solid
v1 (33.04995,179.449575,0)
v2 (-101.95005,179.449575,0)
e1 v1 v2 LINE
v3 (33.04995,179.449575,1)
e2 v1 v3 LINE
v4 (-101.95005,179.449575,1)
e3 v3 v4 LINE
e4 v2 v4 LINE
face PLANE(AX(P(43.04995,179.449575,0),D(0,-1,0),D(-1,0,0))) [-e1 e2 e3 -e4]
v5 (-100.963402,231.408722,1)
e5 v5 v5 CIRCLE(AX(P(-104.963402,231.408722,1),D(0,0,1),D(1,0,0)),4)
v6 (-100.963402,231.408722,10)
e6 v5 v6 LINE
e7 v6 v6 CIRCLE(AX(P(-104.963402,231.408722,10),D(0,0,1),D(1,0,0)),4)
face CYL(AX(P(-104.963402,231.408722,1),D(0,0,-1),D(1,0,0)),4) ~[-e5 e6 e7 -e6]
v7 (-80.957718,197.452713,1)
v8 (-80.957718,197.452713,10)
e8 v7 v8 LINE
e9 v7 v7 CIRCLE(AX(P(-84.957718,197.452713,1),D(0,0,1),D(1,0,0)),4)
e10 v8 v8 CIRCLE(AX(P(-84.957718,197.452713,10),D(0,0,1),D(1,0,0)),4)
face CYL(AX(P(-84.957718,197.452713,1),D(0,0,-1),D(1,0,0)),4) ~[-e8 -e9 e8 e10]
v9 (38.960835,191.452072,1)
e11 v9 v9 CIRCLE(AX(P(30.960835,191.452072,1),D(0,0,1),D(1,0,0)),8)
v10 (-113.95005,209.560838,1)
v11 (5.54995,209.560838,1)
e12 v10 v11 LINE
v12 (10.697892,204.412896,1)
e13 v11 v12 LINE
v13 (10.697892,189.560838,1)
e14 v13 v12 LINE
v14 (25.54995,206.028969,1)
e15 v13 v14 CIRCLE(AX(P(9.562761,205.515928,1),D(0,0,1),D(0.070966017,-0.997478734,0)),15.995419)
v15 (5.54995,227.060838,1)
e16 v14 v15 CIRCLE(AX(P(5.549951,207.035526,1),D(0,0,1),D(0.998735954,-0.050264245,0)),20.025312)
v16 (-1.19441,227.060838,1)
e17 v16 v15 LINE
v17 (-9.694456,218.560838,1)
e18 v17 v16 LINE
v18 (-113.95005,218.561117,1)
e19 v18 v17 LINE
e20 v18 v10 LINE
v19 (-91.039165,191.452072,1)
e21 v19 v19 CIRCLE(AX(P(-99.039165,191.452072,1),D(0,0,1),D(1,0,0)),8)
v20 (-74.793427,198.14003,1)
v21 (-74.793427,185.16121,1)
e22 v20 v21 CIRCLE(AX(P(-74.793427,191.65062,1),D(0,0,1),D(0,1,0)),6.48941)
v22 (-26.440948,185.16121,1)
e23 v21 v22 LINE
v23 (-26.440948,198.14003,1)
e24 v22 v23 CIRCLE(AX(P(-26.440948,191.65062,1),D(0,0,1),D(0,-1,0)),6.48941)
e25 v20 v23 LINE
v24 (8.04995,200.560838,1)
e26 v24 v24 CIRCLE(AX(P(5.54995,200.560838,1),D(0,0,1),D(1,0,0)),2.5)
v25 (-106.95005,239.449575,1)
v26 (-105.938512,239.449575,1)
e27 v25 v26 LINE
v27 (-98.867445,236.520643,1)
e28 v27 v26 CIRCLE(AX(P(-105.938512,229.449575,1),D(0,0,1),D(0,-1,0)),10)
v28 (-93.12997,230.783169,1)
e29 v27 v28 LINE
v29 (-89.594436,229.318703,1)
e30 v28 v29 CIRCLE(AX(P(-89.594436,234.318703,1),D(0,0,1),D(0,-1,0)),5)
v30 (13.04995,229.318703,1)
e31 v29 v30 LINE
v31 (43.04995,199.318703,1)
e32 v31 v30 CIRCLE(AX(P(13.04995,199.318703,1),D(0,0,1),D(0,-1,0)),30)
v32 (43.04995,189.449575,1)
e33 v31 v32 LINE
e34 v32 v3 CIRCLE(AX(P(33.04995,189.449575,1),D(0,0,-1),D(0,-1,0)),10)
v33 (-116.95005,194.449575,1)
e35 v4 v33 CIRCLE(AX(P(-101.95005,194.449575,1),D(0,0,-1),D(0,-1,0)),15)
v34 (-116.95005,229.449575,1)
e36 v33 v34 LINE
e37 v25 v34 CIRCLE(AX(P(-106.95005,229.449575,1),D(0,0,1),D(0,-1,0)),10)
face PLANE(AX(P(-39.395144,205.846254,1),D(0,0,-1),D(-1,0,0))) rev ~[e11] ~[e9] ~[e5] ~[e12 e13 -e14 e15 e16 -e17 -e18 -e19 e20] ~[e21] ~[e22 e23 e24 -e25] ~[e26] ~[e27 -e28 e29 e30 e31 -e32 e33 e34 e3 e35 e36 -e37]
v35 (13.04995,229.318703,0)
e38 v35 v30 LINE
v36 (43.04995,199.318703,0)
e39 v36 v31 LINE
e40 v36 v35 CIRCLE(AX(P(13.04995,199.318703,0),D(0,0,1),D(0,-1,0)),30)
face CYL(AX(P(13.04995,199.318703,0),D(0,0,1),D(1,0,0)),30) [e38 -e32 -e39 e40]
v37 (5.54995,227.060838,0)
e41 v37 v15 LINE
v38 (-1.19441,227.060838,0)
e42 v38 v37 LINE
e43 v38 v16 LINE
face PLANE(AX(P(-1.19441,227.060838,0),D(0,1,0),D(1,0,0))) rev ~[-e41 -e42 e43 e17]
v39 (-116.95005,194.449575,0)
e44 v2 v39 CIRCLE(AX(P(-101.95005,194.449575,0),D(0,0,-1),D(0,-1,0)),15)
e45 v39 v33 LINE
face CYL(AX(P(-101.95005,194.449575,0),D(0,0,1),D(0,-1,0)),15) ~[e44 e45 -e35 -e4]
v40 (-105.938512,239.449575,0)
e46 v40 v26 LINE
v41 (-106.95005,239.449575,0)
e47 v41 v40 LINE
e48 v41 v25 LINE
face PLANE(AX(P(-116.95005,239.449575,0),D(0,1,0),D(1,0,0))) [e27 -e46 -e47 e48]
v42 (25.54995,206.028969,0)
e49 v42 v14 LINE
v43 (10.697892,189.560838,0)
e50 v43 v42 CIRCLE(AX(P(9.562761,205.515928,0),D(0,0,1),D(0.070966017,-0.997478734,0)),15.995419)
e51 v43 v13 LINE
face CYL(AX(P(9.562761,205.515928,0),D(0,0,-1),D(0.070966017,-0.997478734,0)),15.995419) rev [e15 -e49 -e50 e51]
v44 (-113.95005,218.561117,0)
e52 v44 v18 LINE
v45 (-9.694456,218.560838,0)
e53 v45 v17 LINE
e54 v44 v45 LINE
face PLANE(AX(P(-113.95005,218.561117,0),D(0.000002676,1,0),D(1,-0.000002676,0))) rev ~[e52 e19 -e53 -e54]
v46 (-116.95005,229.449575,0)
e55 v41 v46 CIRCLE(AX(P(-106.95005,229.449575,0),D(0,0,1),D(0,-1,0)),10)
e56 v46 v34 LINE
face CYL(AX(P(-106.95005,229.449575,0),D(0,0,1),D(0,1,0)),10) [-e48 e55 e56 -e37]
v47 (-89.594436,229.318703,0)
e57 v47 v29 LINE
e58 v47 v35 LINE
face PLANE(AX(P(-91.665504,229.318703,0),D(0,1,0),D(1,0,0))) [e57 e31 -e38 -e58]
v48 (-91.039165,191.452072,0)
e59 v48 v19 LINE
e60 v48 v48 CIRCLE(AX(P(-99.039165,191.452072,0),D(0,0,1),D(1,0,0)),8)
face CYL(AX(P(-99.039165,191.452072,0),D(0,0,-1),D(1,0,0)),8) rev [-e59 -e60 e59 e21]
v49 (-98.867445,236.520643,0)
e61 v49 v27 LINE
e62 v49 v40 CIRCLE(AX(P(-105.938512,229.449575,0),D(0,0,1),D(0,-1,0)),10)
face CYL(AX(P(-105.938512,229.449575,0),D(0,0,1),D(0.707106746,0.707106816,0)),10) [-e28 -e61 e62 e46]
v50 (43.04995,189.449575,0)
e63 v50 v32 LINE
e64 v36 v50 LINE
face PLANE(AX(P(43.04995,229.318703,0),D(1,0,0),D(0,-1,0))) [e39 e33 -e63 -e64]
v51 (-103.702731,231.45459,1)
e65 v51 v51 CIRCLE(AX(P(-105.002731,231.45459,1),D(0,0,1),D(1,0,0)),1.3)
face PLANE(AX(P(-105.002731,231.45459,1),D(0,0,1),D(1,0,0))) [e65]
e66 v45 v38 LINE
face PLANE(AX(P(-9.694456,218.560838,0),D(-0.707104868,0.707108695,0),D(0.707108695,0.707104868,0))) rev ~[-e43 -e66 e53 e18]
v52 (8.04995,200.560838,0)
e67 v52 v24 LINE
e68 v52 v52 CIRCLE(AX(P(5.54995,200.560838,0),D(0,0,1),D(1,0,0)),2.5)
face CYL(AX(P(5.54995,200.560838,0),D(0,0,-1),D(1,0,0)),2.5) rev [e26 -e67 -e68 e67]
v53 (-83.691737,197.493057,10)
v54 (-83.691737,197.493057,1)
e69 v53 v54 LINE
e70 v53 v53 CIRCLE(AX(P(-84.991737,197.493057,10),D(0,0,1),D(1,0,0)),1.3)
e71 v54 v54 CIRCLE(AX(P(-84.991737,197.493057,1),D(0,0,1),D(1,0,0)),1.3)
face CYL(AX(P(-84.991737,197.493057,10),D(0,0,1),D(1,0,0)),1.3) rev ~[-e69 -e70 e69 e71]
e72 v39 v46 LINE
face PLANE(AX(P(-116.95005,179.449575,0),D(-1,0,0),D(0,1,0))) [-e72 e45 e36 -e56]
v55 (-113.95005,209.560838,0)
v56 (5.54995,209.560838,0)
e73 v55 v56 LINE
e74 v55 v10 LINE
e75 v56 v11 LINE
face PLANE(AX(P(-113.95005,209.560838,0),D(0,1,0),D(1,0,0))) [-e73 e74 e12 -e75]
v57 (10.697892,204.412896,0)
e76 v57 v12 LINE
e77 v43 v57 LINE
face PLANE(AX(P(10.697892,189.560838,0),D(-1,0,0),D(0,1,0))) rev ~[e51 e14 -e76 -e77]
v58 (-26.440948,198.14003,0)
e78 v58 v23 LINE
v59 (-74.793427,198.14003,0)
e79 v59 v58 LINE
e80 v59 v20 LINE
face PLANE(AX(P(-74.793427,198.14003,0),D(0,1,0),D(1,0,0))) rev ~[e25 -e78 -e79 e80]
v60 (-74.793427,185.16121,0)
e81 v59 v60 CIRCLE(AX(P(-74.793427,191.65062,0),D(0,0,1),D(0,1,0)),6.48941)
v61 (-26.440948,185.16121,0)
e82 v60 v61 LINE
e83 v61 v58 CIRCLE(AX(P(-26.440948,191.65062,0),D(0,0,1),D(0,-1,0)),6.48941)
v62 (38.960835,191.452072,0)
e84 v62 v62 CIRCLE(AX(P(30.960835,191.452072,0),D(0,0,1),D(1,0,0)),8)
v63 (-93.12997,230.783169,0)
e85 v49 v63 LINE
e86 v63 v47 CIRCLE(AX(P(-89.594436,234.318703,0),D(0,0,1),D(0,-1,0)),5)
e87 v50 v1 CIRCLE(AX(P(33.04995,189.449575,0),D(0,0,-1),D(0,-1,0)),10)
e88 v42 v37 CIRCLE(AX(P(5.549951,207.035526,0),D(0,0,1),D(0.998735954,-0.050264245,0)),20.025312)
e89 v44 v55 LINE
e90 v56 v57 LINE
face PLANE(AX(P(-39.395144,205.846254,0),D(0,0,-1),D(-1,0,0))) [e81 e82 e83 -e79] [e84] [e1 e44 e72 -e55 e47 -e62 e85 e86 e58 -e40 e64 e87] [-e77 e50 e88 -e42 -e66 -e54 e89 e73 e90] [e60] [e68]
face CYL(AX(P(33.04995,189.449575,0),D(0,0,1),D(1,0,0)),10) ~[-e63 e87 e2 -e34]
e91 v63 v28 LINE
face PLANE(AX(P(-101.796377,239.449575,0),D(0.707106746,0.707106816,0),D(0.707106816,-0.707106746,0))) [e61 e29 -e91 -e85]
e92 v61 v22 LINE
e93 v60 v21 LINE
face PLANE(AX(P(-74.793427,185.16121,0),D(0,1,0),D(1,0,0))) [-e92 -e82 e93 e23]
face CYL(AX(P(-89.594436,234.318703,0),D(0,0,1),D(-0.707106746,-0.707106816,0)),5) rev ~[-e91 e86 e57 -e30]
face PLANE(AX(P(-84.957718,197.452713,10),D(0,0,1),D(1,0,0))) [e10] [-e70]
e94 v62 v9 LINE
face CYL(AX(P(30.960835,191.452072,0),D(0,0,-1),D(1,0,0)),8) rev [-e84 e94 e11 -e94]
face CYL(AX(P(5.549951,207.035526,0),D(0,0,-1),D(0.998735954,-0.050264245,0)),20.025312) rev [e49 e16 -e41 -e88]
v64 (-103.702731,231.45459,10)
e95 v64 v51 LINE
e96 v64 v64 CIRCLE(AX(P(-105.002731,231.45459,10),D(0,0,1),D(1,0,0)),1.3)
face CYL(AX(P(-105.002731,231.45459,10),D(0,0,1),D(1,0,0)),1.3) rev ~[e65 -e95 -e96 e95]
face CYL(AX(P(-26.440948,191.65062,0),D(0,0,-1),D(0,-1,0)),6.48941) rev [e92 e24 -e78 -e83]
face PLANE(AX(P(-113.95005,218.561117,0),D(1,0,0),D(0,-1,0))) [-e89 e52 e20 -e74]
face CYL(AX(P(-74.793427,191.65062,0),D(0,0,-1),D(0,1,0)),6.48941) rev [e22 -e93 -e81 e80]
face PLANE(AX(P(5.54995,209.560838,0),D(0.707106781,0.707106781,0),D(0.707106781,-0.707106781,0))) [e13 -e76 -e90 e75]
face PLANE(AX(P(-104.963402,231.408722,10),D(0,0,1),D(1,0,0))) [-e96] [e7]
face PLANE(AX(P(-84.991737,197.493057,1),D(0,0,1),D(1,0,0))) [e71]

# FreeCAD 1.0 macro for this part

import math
import FreeCAD as App
import Part
import Sketcher
Q = App.Units.Quantity


def edges_at(feature, points):
    """Names of the edges that pass closest to the given points."""
    edges = feature.Shape.Edges
    near = lambda p: min(range(len(edges)), key=lambda i: edges[i].distToShape(Part.Vertex(*p))[0])
    return sorted({f"Edge{near(p) + 1}" for p in points})


def add_polygon(sketch, points):
    """Adds a closed chain of lines whose ends are joined by coincident constraints."""
    first, n = sketch.GeometryCount, len(points)
    for a, b in zip(points, points[1:] + points[:1]):
        sketch.addGeometry(Part.LineSegment(App.Vector(*a, 0), App.Vector(*b, 0)), False)
    for i in range(n):
        sketch.addConstraint(Sketcher.Constraint("Coincident", first + i, 2, first + (i + 1) % n, 1))

doc = App.newDocument("Part")
params = doc.addObject("Spreadsheet::Sheet", "Params")
for row, (alias, value) in enumerate([
    ("sketch1_diameter", "16 mm"),
    ("sketch1_diameter2", "5 mm"),
    ("sketch1_width", "160 mm"),
    ("sketch1_height", "60 mm"),
    ("sketch1_width2", "119.5 mm"),
    ("pad1_length", "1 mm"),
    ("sketch2_diameter", "8 mm"),
    ("pad2_length", "9 mm"),
    ("sketch3_diameter", "2.6 mm"),
    ("pocket1_length", "9 mm"),
    ("fillet_radius", "10 mm"),
    ("fillet2_radius", "15 mm"),
    ("fillet3_radius", "30 mm"),
    ("fillet4_radius", "10 mm"),
    ("fillet5_radius", "10 mm"),
    ("fillet6_radius", "5 mm"),
], start=1):
    params.set(f"A{row}", alias)
    params.set(f"B{row}", "=" + value)
    params.setAlias(f"B{row}", alias)

body = doc.addObject("PartDesign::Body", "Body")

# Sketch on XY plane
sketch1 = doc.addObject("Sketcher::SketchObject", "Sketch")
body.addObject(sketch1)
sketch1.AttachmentSupport = (doc.XY_Plane, [""])
sketch1.MapMode = "FlatFace"
add_polygon(sketch1, [(43.04995, 179.449575), (43.04995, 229.318703), (-91.665504, 229.318703), (-101.796377, 239.449575), (-116.95005, 239.449575), (-116.95005, 179.449575)])  # lines 0-5
sketch1.addGeometry(Part.Circle(App.Vector(30.960835, 191.452072, 0), App.Vector(0, 0, 1), 8), False)  # 6
sketch1.addGeometry(Part.Circle(App.Vector(5.54995, 200.560838, 0), App.Vector(0, 0, 1), 2.5), False)  # 7
sketch1.addGeometry(Part.LineSegment(App.Vector(-74.793427, 198.14003, 0), App.Vector(-26.440948, 198.14003, 0)), False)  # 8
sketch1.addGeometry(Part.ArcOfCircle(Part.Circle(App.Vector(-26.440948, 191.65062, 0), App.Vector(0, 0, 1), 6.48941), math.radians(-90), math.radians(90)), False)  # 9
sketch1.addGeometry(Part.LineSegment(App.Vector(-26.440948, 185.16121, 0), App.Vector(-74.793427, 185.16121, 0)), False)  # 10
sketch1.addGeometry(Part.ArcOfCircle(Part.Circle(App.Vector(-74.793427, 191.65062, 0), App.Vector(0, 0, 1), 6.48941), math.radians(90), math.radians(270)), False)  # 11
sketch1.addGeometry(Part.Circle(App.Vector(-99.039165, 191.452072, 0), App.Vector(0, 0, 1), 8), False)  # 12
sketch1.addGeometry(Part.ArcOfCircle(Part.Circle(App.Vector(9.562761, 205.515928, 0), App.Vector(0, 0, 1), 15.995419), math.radians(-85.930526), math.radians(1.838033)), False)  # 13
sketch1.addGeometry(Part.LineSegment(App.Vector(10.697892, 189.560838, 0), App.Vector(10.697892, 204.412896, 0)), False)  # 14
sketch1.addGeometry(Part.LineSegment(App.Vector(10.697892, 204.412896, 0), App.Vector(5.54995, 209.560838, 0)), False)  # 15
sketch1.addGeometry(Part.LineSegment(App.Vector(5.54995, 209.560838, 0), App.Vector(-113.95005, 209.560838, 0)), False)  # 16
sketch1.addGeometry(Part.LineSegment(App.Vector(-113.95005, 209.560838, 0), App.Vector(-113.95005, 218.561117, 0)), False)  # 17
sketch1.addGeometry(Part.LineSegment(App.Vector(-113.95005, 218.561117, 0), App.Vector(-9.694456, 218.560838, 0)), False)  # 18
sketch1.addGeometry(Part.LineSegment(App.Vector(-9.694456, 218.560838, 0), App.Vector(-1.19441, 227.060838, 0)), False)  # 19
sketch1.addGeometry(Part.LineSegment(App.Vector(-1.19441, 227.060838, 0), App.Vector(5.54995, 227.060838, 0)), False)  # 20
sketch1.addGeometry(Part.ArcOfCircle(Part.Circle(App.Vector(5.549951, 207.035526, 0), App.Vector(0, 0, 1), 20.025312), math.radians(-2.881143), math.radians(90.000003)), False)  # 21
sketch1.addConstraint([
    Sketcher.Constraint("Tangent", 8, 2, 9, 2),
    Sketcher.Constraint("Tangent", 9, 1, 10, 1),
    Sketcher.Constraint("Tangent", 10, 2, 11, 2),
    Sketcher.Constraint("Tangent", 11, 1, 8, 1),
    Sketcher.Constraint("Coincident", 13, 1, 14, 1),
    Sketcher.Constraint("Coincident", 14, 2, 15, 1),
    Sketcher.Constraint("Coincident", 15, 2, 16, 1),
    Sketcher.Constraint("Coincident", 16, 2, 17, 1),
    Sketcher.Constraint("Coincident", 17, 2, 18, 1),
    Sketcher.Constraint("Coincident", 18, 2, 19, 1),
    Sketcher.Constraint("Coincident", 19, 2, 20, 1),
    Sketcher.Constraint("Tangent", 20, 2, 21, 2),
    Sketcher.Constraint("Coincident", 21, 1, 13, 2),
    Sketcher.Constraint("Vertical", 0),
    Sketcher.Constraint("Horizontal", 1),
    Sketcher.Constraint("Horizontal", 3),
    Sketcher.Constraint("Vertical", 4),
    Sketcher.Constraint("Horizontal", 5),
    Sketcher.Constraint("Horizontal", 8),
    Sketcher.Constraint("Horizontal", 10),
    Sketcher.Constraint("Vertical", 14),
    Sketcher.Constraint("Horizontal", 16),
    Sketcher.Constraint("Vertical", 17),
    Sketcher.Constraint("Horizontal", 20),
    Sketcher.Constraint("Equal", 6, 12),
    Sketcher.Constraint("Parallel", 2, 15),
    Sketcher.Constraint("Horizontal", 6, 3, 12, 3),
    Sketcher.Constraint("Vertical", 7, 3, 21, 3),
    Sketcher.Constraint("Vertical", 21, 3, 15, 2),
    Sketcher.Constraint("Diameter", 6, 16.0),
    Sketcher.Constraint("Diameter", 7, 5.0),
    Sketcher.Constraint("DistanceX", 5, 1, 5, 2, 160.0),
    Sketcher.Constraint("DistanceY", 4, 2, 4, 1, 60.0),
    Sketcher.Constraint("Angle", 2, Q("135.000003 deg")),
    Sketcher.Constraint("DistanceX", 16, 2, 16, 1, 119.5),
    Sketcher.Constraint("DistanceX", 12, 3, 6, 3, 130.0),
    Sketcher.Constraint("DistanceY", 13, 1, 7, 3, 11.0),
    Sketcher.Constraint("DistanceY", 7, 3, 15, 2, 9.0),
    Sketcher.Constraint("DistanceX", 3, 2, 16, 2, 3.0),
    Sketcher.Constraint("DistanceY", 15, 2, 18, 2, 9.0),
    Sketcher.Constraint("DistanceX", 21, 3, 21, 1, 19.999999),
    Sketcher.Constraint("DistanceY", 18, 2, 19, 2, 8.5),
    Sketcher.Constraint("Radius", 9, 6.48941),
    Sketcher.Constraint("Radius", 13, 15.995419),
    Sketcher.Constraint("Radius", 21, 20.025312),
    Sketcher.Constraint("DistanceX", 8, 1, 8, 2, 48.352479),
    Sketcher.Constraint("DistanceX", 20, 1, 20, 2, 6.74436),
    Sketcher.Constraint("DistanceY", 17, 1, 17, 2, 9.000279),
    Sketcher.Constraint("DistanceX", 9, 3, 21, 3, 31.990899),
    Sketcher.Constraint("DistanceY", 8, 2, 13, 3, 7.375898),
    Sketcher.Constraint("DistanceX", 19, 2, 14, 2, 11.892302),
    Sketcher.Constraint("DistanceX", 1, 2, 1, 1, 134.715454),
    Sketcher.Constraint("DistanceX", 3, 2, 3, 1, 15.153673),
    Sketcher.Constraint("DistanceY", -1, 1, 6, 3, 191.452072),
    Sketcher.Constraint("DistanceX", -1, 1, 7, 3, 5.54995),
    Sketcher.Constraint("DistanceY", -1, 1, 9, 3, 191.65062),
    Sketcher.Constraint("DistanceX", 11, 3, 6, 3, 105.754262),
    Sketcher.Constraint("DistanceY", 6, 3, 0, 2, 37.866631),
    Sketcher.Constraint("Distance", 18, 104.255594),
])
sketch1.setExpression("Constraints[35]", "Params.sketch1_diameter")
sketch1.setExpression("Constraints[36]", "Params.sketch1_diameter2")
sketch1.setExpression("Constraints[37]", "Params.sketch1_width")
sketch1.setExpression("Constraints[38]", "Params.sketch1_height")
sketch1.setExpression("Constraints[40]", "Params.sketch1_width2")
pad1 = doc.addObject("PartDesign::Pad", "Pad")
body.addObject(pad1)
pad1.Profile = sketch1
pad1.setExpression("Length", "Params.pad1_length")

# Sketch on XY plane
sketch2 = doc.addObject("Sketcher::SketchObject", "Sketch001")
body.addObject(sketch2)
sketch2.AttachmentSupport = (doc.XY_Plane, [""])
sketch2.MapMode = "FlatFace"
sketch2.AttachmentOffset = App.Placement(App.Vector(0, 0, 1), App.Rotation())
sketch2.addGeometry([
    Part.Circle(App.Vector(-104.963402, 231.408722, 0), App.Vector(0, 0, 1), 4),
    Part.Circle(App.Vector(-84.957718, 197.452713, 0), App.Vector(0, 0, 1), 4),
], False)
sketch2.addConstraint([
    Sketcher.Constraint("Equal", 0, 1),
    Sketcher.Constraint("Diameter", 0, 8.0),
    Sketcher.Constraint("DistanceX", 1, 3, -1, 1, 84.957718),
    Sketcher.Constraint("DistanceY", 1, 3, 0, 3, 33.956009),
    Sketcher.Constraint("DistanceX", 0, 3, -1, 1, 104.963402),
    Sketcher.Constraint("DistanceY", -1, 1, 0, 3, 231.408722),
])
sketch2.setExpression("Constraints[1]", "Params.sketch2_diameter")
pad2 = doc.addObject("PartDesign::Pad", "Pad001")
body.addObject(pad2)
pad2.Profile = sketch2
pad2.setExpression("Length", "Params.pad2_length")

# Sketch on XY plane
sketch3 = doc.addObject("Sketcher::SketchObject", "Sketch002")
body.addObject(sketch3)
sketch3.AttachmentSupport = (doc.XY_Plane, [""])
sketch3.MapMode = "FlatFace"
sketch3.AttachmentOffset = App.Placement(App.Vector(0, 0, 10), App.Rotation())
sketch3.addGeometry([
    Part.Circle(App.Vector(-105.002731, 231.45459, 0), App.Vector(0, 0, 1), 1.3),
    Part.Circle(App.Vector(-84.991737, 197.493057, 0), App.Vector(0, 0, 1), 1.3),
], False)
sketch3.addConstraint([
    Sketcher.Constraint("Equal", 0, 1),
    Sketcher.Constraint("Diameter", 0, 2.6),
    Sketcher.Constraint("DistanceX", 0, 3, -1, 1, 105.002731),
    Sketcher.Constraint("DistanceY", -1, 1, 0, 3, 231.45459),
    Sketcher.Constraint("DistanceX", 1, 3, -1, 1, 84.991737),
    Sketcher.Constraint("DistanceY", -1, 1, 1, 3, 197.493057),
])
sketch3.setExpression("Constraints[1]", "Params.sketch3_diameter")
pocket1 = doc.addObject("PartDesign::Pocket", "Pocket")
body.addObject(pocket1)
pocket1.Profile = sketch3
pocket1.setExpression("Length", "Params.pocket1_length")
doc.recompute()

fillet = doc.addObject("PartDesign::Fillet", "Fillet")
body.addObject(fillet)
fillet.Base = (pocket1, edges_at(pocket1, [(43.05, 179.45, 0.5)]))
fillet.setExpression("Radius", "Params.fillet_radius")
doc.recompute()

fillet2 = doc.addObject("PartDesign::Fillet", "Fillet001")
body.addObject(fillet2)
fillet2.Base = (fillet, edges_at(fillet, [(-116.95, 179.45, 0.5)]))
fillet2.setExpression("Radius", "Params.fillet2_radius")
doc.recompute()

fillet3 = doc.addObject("PartDesign::Fillet", "Fillet002")
body.addObject(fillet3)
fillet3.Base = (fillet2, edges_at(fillet2, [(43.05, 229.319, 0.5)]))
fillet3.setExpression("Radius", "Params.fillet3_radius")
doc.recompute()

fillet4 = doc.addObject("PartDesign::Fillet", "Fillet003")
body.addObject(fillet4)
fillet4.Base = (fillet3, edges_at(fillet3, [(-101.796, 239.45, 0.5)]))
fillet4.setExpression("Radius", "Params.fillet4_radius")
doc.recompute()

fillet5 = doc.addObject("PartDesign::Fillet", "Fillet004")
body.addObject(fillet5)
fillet5.Base = (fillet4, edges_at(fillet4, [(-116.95, 239.45, 0.5)]))
fillet5.setExpression("Radius", "Params.fillet5_radius")
doc.recompute()

fillet6 = doc.addObject("PartDesign::Fillet", "Fillet005")
body.addObject(fillet6)
fillet6.Base = (fillet5, edges_at(fillet5, [(-91.666, 229.319, 0.5)]))
fillet6.setExpression("Radius", "Params.fillet6_radius")

doc.recompute()
